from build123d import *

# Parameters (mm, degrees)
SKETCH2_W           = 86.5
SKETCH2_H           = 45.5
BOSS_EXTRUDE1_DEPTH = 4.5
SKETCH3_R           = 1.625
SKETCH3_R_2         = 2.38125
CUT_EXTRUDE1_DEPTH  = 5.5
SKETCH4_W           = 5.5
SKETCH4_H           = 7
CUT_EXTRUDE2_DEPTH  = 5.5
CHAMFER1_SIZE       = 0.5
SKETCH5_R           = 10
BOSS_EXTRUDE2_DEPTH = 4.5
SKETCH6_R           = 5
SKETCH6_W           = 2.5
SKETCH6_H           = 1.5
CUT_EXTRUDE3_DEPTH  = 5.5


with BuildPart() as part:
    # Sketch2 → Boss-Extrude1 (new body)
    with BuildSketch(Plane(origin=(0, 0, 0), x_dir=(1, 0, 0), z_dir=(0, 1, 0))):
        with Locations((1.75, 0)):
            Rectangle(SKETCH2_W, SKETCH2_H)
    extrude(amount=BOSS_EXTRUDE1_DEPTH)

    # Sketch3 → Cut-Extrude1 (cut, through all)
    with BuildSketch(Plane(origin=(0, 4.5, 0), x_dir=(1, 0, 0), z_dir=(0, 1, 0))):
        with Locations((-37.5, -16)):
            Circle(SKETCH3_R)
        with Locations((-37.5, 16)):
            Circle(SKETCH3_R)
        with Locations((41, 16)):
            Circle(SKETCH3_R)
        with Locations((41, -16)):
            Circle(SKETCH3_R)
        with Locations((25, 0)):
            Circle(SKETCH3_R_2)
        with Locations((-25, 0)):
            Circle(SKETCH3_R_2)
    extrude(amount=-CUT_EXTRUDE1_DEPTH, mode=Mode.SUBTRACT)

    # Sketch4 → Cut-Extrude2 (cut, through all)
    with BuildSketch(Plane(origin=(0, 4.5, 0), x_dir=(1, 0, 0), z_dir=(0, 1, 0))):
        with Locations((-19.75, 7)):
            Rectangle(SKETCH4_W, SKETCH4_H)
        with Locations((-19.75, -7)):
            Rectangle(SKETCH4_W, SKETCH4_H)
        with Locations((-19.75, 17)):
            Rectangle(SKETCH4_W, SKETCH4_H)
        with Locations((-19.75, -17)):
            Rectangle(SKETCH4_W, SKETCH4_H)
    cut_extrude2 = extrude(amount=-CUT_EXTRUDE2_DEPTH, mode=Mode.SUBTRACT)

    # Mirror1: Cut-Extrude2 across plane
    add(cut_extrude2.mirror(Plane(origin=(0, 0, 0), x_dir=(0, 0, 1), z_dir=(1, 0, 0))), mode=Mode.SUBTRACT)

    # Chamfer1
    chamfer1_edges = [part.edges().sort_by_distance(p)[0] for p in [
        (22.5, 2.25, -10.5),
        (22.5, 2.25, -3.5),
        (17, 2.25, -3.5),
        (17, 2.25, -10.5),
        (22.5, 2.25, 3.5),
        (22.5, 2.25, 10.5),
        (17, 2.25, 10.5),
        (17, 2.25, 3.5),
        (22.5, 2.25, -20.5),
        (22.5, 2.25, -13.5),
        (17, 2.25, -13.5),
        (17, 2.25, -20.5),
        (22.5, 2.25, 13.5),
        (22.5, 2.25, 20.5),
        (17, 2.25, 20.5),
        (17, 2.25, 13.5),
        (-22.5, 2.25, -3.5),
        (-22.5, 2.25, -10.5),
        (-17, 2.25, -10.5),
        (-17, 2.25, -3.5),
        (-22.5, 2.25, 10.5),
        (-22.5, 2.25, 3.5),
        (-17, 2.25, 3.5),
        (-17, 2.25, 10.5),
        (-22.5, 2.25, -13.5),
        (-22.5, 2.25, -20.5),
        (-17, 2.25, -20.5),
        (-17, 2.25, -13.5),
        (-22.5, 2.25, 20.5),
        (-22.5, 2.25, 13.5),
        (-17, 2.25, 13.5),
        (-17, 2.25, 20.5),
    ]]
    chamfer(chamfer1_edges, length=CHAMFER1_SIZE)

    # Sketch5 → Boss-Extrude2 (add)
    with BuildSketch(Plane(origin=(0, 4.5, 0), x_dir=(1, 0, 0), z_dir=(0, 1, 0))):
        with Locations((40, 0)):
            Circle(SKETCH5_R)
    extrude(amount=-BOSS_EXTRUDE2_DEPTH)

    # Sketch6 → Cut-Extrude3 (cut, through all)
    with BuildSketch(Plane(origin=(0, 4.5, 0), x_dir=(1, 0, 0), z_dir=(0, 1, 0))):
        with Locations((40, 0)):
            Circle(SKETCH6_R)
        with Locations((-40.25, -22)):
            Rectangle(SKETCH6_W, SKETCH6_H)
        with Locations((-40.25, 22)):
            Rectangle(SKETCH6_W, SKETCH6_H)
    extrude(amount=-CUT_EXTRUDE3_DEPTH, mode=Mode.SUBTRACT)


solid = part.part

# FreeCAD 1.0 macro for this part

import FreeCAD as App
import Part
import Sketcher
from FreeCAD import Vector


def edges_at(feature, points):
    """Names of the edges that pass closest to the given points."""
    edges = feature.Shape.Edges
    near = lambda p: min(range(len(edges)), key=lambda i: edges[i].distToShape(Part.Vertex(*p))[0])
    return sorted({f"Edge{near(p) + 1}" for p in points})

doc = App.newDocument("Part")
body = doc.addObject("PartDesign::Body", "Body")

# Sketch on XZ plane
sketch1 = body.newObject("Sketcher::SketchObject", "Sketch")
sketch1.AttachmentSupport = (doc.getObject("XZ_Plane"), [""])
sketch1.MapMode = "FlatFace"
sketch1.addGeometry(Part.LineSegment(Vector(-41.5, -22.75, 0), Vector(-41.5, 22.75, 0)), False)
sketch1.addGeometry(Part.LineSegment(Vector(-41.5, 22.75, 0), Vector(45, 22.75, 0)), False)
sketch1.addGeometry(Part.LineSegment(Vector(45, 22.75, 0), Vector(45, -22.75, 0)), False)
sketch1.addGeometry(Part.LineSegment(Vector(45, -22.75, 0), Vector(-41.5, -22.75, 0)), False)
sketch1.addConstraint(Sketcher.Constraint("Coincident", 0, 2, 1, 1))
sketch1.addConstraint(Sketcher.Constraint("Coincident", 1, 2, 2, 1))
sketch1.addConstraint(Sketcher.Constraint("Coincident", 2, 2, 3, 1))
sketch1.addConstraint(Sketcher.Constraint("Coincident", 3, 2, 0, 1))
sketch1.addConstraint(Sketcher.Constraint("Vertical", 0))
sketch1.addConstraint(Sketcher.Constraint("Horizontal", 1))
sketch1.addConstraint(Sketcher.Constraint("Vertical", 2))
sketch1.addConstraint(Sketcher.Constraint("Horizontal", 3))
sketch1.addConstraint(Sketcher.Constraint("DistanceX", 1, 1, 1, 2, 86.5))
sketch1.addConstraint(Sketcher.Constraint("DistanceY", 0, 1, 0, 2, 45.5))
sketch1.addConstraint(Sketcher.Constraint("DistanceX", -1, 1, 1, 2, 45.0))
sketch1.addConstraint(Sketcher.Constraint("DistanceY", -1, 1, 0, 2, 22.75))
pad1 = body.newObject("PartDesign::Pad", "Pad")
pad1.Profile = sketch1
pad1.Length = 4.5
pad1.Reversed = True

# Sketch on XZ plane
sketch2 = body.newObject("Sketcher::SketchObject", "Sketch001")
sketch2.AttachmentSupport = (doc.getObject("XZ_Plane"), [""])
sketch2.MapMode = "FlatFace"
sketch2.AttachmentOffset = App.Placement(Vector(0, 0, -4.5), App.Rotation())
sketch2.addGeometry(Part.Circle(Vector(-37.5, 16, 0), Vector(0, 0, 1), 1.625), False)
sketch2.addGeometry(Part.Circle(Vector(-37.5, -16, 0), Vector(0, 0, 1), 1.625), False)
sketch2.addGeometry(Part.Circle(Vector(41, -16, 0), Vector(0, 0, 1), 1.625), False)
sketch2.addGeometry(Part.Circle(Vector(41, 16, 0), Vector(0, 0, 1), 1.625), False)
sketch2.addGeometry(Part.Circle(Vector(25, 0, 0), Vector(0, 0, 1), 2.38125), False)
sketch2.addGeometry(Part.Circle(Vector(-25, 0, 0), Vector(0, 0, 1), 2.38125), False)
sketch2.addConstraint(Sketcher.Constraint("Equal", 0, 1))
sketch2.addConstraint(Sketcher.Constraint("Equal", 1, 2))
sketch2.addConstraint(Sketcher.Constraint("Equal", 2, 3))
sketch2.addConstraint(Sketcher.Constraint("Equal", 4, 5))
sketch2.addConstraint(Sketcher.Constraint("Symmetric", 4, 3, 5, 3, -1, 1))
sketch2.addConstraint(Sketcher.Constraint("Symmetric", 0, 3, 1, 3, -1))
sketch2.addConstraint(Sketcher.Constraint("Symmetric", 2, 3, 3, 3, -1))
sketch2.addConstraint(Sketcher.Constraint("PointOnObject", 4, 3, -1))
sketch2.addConstraint(Sketcher.Constraint("Horizontal", 1, 3, 2, 3))
sketch2.addConstraint(Sketcher.Constraint("Diameter", 0, 3.25))
sketch2.addConstraint(Sketcher.Constraint("DistanceY", -1, 1, 0, 3, 16.0))
sketch2.addConstraint(Sketcher.Constraint("DistanceX", -1, 1, 2, 3, 41.0))
sketch2.addConstraint(Sketcher.Constraint("DistanceX", -1, 1, 4, 3, 25.0))
sketch2.addConstraint(Sketcher.Constraint("Diameter", 4, 4.7625))
sketch2.addConstraint(Sketcher.Constraint("DistanceX", 0, 3, -1, 1, 37.5))
pocket1 = body.newObject("PartDesign::Pocket", "Pocket")
pocket1.Profile = sketch2
pocket1.Type = "ThroughAll"
pocket1.Reversed = True

# Sketch on XZ plane
sketch3 = body.newObject("Sketcher::SketchObject", "Sketch002")
sketch3.AttachmentSupport = (doc.getObject("XZ_Plane"), [""])
sketch3.MapMode = "FlatFace"
sketch3.AttachmentOffset = App.Placement(Vector(0, 0, -4.5), App.Rotation())
sketch3.addGeometry(Part.LineSegment(Vector(-22.5, -10.5, 0), Vector(-22.5, -3.5, 0)), False)
sketch3.addGeometry(Part.LineSegment(Vector(-22.5, -3.5, 0), Vector(-17, -3.5, 0)), False)
sketch3.addGeometry(Part.LineSegment(Vector(-17, -3.5, 0), Vector(-17, -10.5, 0)), False)
sketch3.addGeometry(Part.LineSegment(Vector(-17, -10.5, 0), Vector(-22.5, -10.5, 0)), False)
sketch3.addGeometry(Part.LineSegment(Vector(-22.5, 3.5, 0), Vector(-22.5, 10.5, 0)), False)
sketch3.addGeometry(Part.LineSegment(Vector(-22.5, 10.5, 0), Vector(-17, 10.5, 0)), False)
sketch3.addGeometry(Part.LineSegment(Vector(-17, 10.5, 0), Vector(-17, 3.5, 0)), False)
sketch3.addGeometry(Part.LineSegment(Vector(-17, 3.5, 0), Vector(-22.5, 3.5, 0)), False)
sketch3.addGeometry(Part.LineSegment(Vector(-22.5, -20.5, 0), Vector(-22.5, -13.5, 0)), False)
sketch3.addGeometry(Part.LineSegment(Vector(-22.5, -13.5, 0), Vector(-17, -13.5, 0)), False)
sketch3.addGeometry(Part.LineSegment(Vector(-17, -13.5, 0), Vector(-17, -20.5, 0)), False)
sketch3.addGeometry(Part.LineSegment(Vector(-17, -20.5, 0), Vector(-22.5, -20.5, 0)), False)
sketch3.addGeometry(Part.LineSegment(Vector(-22.5, 13.5, 0), Vector(-22.5, 20.5, 0)), False)
sketch3.addGeometry(Part.LineSegment(Vector(-22.5, 20.5, 0), Vector(-17, 20.5, 0)), False)
sketch3.addGeometry(Part.LineSegment(Vector(-17, 20.5, 0), Vector(-17, 13.5, 0)), False)
sketch3.addGeometry(Part.LineSegment(Vector(-17, 13.5, 0), Vector(-22.5, 13.5, 0)), False)
sketch3.addConstraint(Sketcher.Constraint("Coincident", 0, 2, 1, 1))
sketch3.addConstraint(Sketcher.Constraint("Coincident", 1, 2, 2, 1))
sketch3.addConstraint(Sketcher.Constraint("Coincident", 2, 2, 3, 1))
sketch3.addConstraint(Sketcher.Constraint("Coincident", 3, 2, 0, 1))
sketch3.addConstraint(Sketcher.Constraint("Coincident", 4, 2, 5, 1))
sketch3.addConstraint(Sketcher.Constraint("Coincident", 5, 2, 6, 1))
sketch3.addConstraint(Sketcher.Constraint("Coincident", 6, 2, 7, 1))
sketch3.addConstraint(Sketcher.Constraint("Coincident", 7, 2, 4, 1))
sketch3.addConstraint(Sketcher.Constraint("Coincident", 8, 2, 9, 1))
sketch3.addConstraint(Sketcher.Constraint("Coincident", 9, 2, 10, 1))
sketch3.addConstraint(Sketcher.Constraint("Coincident", 10, 2, 11, 1))
sketch3.addConstraint(Sketcher.Constraint("Coincident", 11, 2, 8, 1))
sketch3.addConstraint(Sketcher.Constraint("Coincident", 12, 2, 13, 1))
sketch3.addConstraint(Sketcher.Constraint("Coincident", 13, 2, 14, 1))
sketch3.addConstraint(Sketcher.Constraint("Coincident", 14, 2, 15, 1))
sketch3.addConstraint(Sketcher.Constraint("Coincident", 15, 2, 12, 1))
sketch3.addConstraint(Sketcher.Constraint("Vertical", 0))
sketch3.addConstraint(Sketcher.Constraint("Horizontal", 1))
sketch3.addConstraint(Sketcher.Constraint("Vertical", 2))
sketch3.addConstraint(Sketcher.Constraint("Horizontal", 3))
sketch3.addConstraint(Sketcher.Constraint("Vertical", 4))
sketch3.addConstraint(Sketcher.Constraint("Horizontal", 5))
sketch3.addConstraint(Sketcher.Constraint("Vertical", 6))
sketch3.addConstraint(Sketcher.Constraint("Horizontal", 7))
sketch3.addConstraint(Sketcher.Constraint("Vertical", 8))
sketch3.addConstraint(Sketcher.Constraint("Horizontal", 9))
sketch3.addConstraint(Sketcher.Constraint("Vertical", 10))
sketch3.addConstraint(Sketcher.Constraint("Horizontal", 11))
sketch3.addConstraint(Sketcher.Constraint("Vertical", 12))
sketch3.addConstraint(Sketcher.Constraint("Horizontal", 13))
sketch3.addConstraint(Sketcher.Constraint("Vertical", 14))
sketch3.addConstraint(Sketcher.Constraint("Horizontal", 15))
sketch3.addConstraint(Sketcher.Constraint("Symmetric", 3, 2, 4, 2, -1))
sketch3.addConstraint(Sketcher.Constraint("Symmetric", 1, 2, 6, 2, -1))
sketch3.addConstraint(Sketcher.Constraint("Symmetric", 11, 2, 12, 2, -1))
sketch3.addConstraint(Sketcher.Constraint("Symmetric", 9, 2, 14, 2, -1))
sketch3.addConstraint(Sketcher.Constraint("Vertical", 7, 2, 8, 2))
sketch3.addConstraint(Sketcher.Constraint("Vertical", 6, 2, 9, 2))
sketch3.addConstraint(Sketcher.Constraint("Equal", 6, 8))
sketch3.addConstraint(Sketcher.Constraint("DistanceY", 0, 1, 0, 2, 7.0))
sketch3.addConstraint(Sketcher.Constraint("DistanceX", 1, 1, 1, 2, 5.5))
sketch3.addConstraint(Sketcher.Constraint("DistanceX", 1, 2, -1, 1, 17.0))
sketch3.addConstraint(Sketcher.Constraint("DistanceY", 0, 2, 4, 2, 14.0))
sketch3.addConstraint(Sketcher.Constraint("DistanceY", 8, 2, 3, 2, 3.0))
pocket2 = body.newObject("PartDesign::Pocket", "Pocket001")
pocket2.Profile = sketch3
pocket2.Type = "ThroughAll"
pocket2.Reversed = True
doc.recompute()

mirrored = body.newObject("PartDesign::Mirrored", "Mirrored")
mirrored.Originals = [pocket2]
mirrored.MirrorPlane = (doc.getObject("YZ_Plane"), [""])
body.Tip = mirrored
doc.recompute()

chamfer = body.newObject("PartDesign::Chamfer", "Chamfer")
chamfer.Base = (mirrored, edges_at(mirrored, [
    (22.5, 2.25, -10.5),
    (22.5, 2.25, -3.5),
    (17, 2.25, -3.5),
    (17, 2.25, -10.5),
    (22.5, 2.25, 3.5),
    (22.5, 2.25, 10.5),
    (17, 2.25, 10.5),
    (17, 2.25, 3.5),
    (22.5, 2.25, -20.5),
    (22.5, 2.25, -13.5),
    (17, 2.25, -13.5),
    (17, 2.25, -20.5),
    (22.5, 2.25, 13.5),
    (22.5, 2.25, 20.5),
    (17, 2.25, 20.5),
    (17, 2.25, 13.5),
    (-22.5, 2.25, -3.5),
    (-22.5, 2.25, -10.5),
    (-17, 2.25, -10.5),
    (-17, 2.25, -3.5),
    (-22.5, 2.25, 10.5),
    (-22.5, 2.25, 3.5),
    (-17, 2.25, 3.5),
    (-17, 2.25, 10.5),
    (-22.5, 2.25, -13.5),
    (-22.5, 2.25, -20.5),
    (-17, 2.25, -20.5),
    (-17, 2.25, -13.5),
    (-22.5, 2.25, 20.5),
    (-22.5, 2.25, 13.5),
    (-17, 2.25, 13.5),
    (-17, 2.25, 20.5),
]))
chamfer.Size = 0.5

# Sketch on XZ plane
sketch4 = body.newObject("Sketcher::SketchObject", "Sketch003")
sketch4.AttachmentSupport = (doc.getObject("XZ_Plane"), [""])
sketch4.MapMode = "FlatFace"
sketch4.AttachmentOffset = App.Placement(Vector(0, 0, -4.5), App.Rotation())
sketch4.addGeometry(Part.Circle(Vector(40, 0, 0), Vector(0, 0, 1), 10), False)
sketch4.addConstraint(Sketcher.Constraint("PointOnObject", 0, 3, -1))
sketch4.addConstraint(Sketcher.Constraint("Diameter", 0, 20.0))
sketch4.addConstraint(Sketcher.Constraint("DistanceX", -1, 1, 0, 3, 40.0))
pad2 = body.newObject("PartDesign::Pad", "Pad001")
pad2.Profile = sketch4
pad2.Length = 4.5

# Sketch on XZ plane
sketch5 = body.newObject("Sketcher::SketchObject", "Sketch004")
sketch5.AttachmentSupport = (doc.getObject("XZ_Plane"), [""])
sketch5.MapMode = "FlatFace"
sketch5.AttachmentOffset = App.Placement(Vector(0, 0, -4.5), App.Rotation())
sketch5.addGeometry(Part.Circle(Vector(40, 0, 0), Vector(0, 0, 1), 5), False)
sketch5.addGeometry(Part.LineSegment(Vector(-41.5, 21.25, 0), Vector(-41.5, 22.75, 0)), False)
sketch5.addGeometry(Part.LineSegment(Vector(-41.5, 22.75, 0), Vector(-39, 22.75, 0)), False)
sketch5.addGeometry(Part.LineSegment(Vector(-39, 22.75, 0), Vector(-39, 21.25, 0)), False)
sketch5.addGeometry(Part.LineSegment(Vector(-39, 21.25, 0), Vector(-41.5, 21.25, 0)), False)
sketch5.addGeometry(Part.LineSegment(Vector(-41.5, -22.75, 0), Vector(-41.5, -21.25, 0)), False)
sketch5.addGeometry(Part.LineSegment(Vector(-41.5, -21.25, 0), Vector(-39, -21.25, 0)), False)
sketch5.addGeometry(Part.LineSegment(Vector(-39, -21.25, 0), Vector(-39, -22.75, 0)), False)
sketch5.addGeometry(Part.LineSegment(Vector(-39, -22.75, 0), Vector(-41.5, -22.75, 0)), False)
sketch5.addConstraint(Sketcher.Constraint("Coincident", 1, 2, 2, 1))
sketch5.addConstraint(Sketcher.Constraint("Coincident", 2, 2, 3, 1))
sketch5.addConstraint(Sketcher.Constraint("Coincident", 3, 2, 4, 1))
sketch5.addConstraint(Sketcher.Constraint("Coincident", 4, 2, 1, 1))
sketch5.addConstraint(Sketcher.Constraint("Coincident", 5, 2, 6, 1))
sketch5.addConstraint(Sketcher.Constraint("Coincident", 6, 2, 7, 1))
sketch5.addConstraint(Sketcher.Constraint("Coincident", 7, 2, 8, 1))
sketch5.addConstraint(Sketcher.Constraint("Coincident", 8, 2, 5, 1))
sketch5.addConstraint(Sketcher.Constraint("Vertical", 1))
sketch5.addConstraint(Sketcher.Constraint("Horizontal", 2))
sketch5.addConstraint(Sketcher.Constraint("Vertical", 3))
sketch5.addConstraint(Sketcher.Constraint("Horizontal", 4))
sketch5.addConstraint(Sketcher.Constraint("Vertical", 5))
sketch5.addConstraint(Sketcher.Constraint("Horizontal", 6))
sketch5.addConstraint(Sketcher.Constraint("Vertical", 7))
sketch5.addConstraint(Sketcher.Constraint("Horizontal", 8))
sketch5.addConstraint(Sketcher.Constraint("Symmetric", 4, 2, 5, 2, -1))
sketch5.addConstraint(Sketcher.Constraint("Symmetric", 2, 2, 7, 2, -1))
sketch5.addConstraint(Sketcher.Constraint("PointOnObject", 0, 3, -1))
sketch5.addConstraint(Sketcher.Constraint("Diameter", 0, 10.0))
sketch5.addConstraint(Sketcher.Constraint("DistanceX", 2, 1, 2, 2, 2.5))
sketch5.addConstraint(Sketcher.Constraint("DistanceY", 1, 1, 1, 2, 1.5))
sketch5.addConstraint(Sketcher.Constraint("DistanceX", -1, 1, 0, 3, 40.0))
sketch5.addConstraint(Sketcher.Constraint("DistanceX", 2, 2, -1, 1, 39.0))
sketch5.addConstraint(Sketcher.Constraint("DistanceY", 5, 2, 1, 2, 44.0))
pocket3 = body.newObject("PartDesign::Pocket", "Pocket002")
pocket3.Profile = sketch5
pocket3.Type = "ThroughAll"
pocket3.Reversed = True

doc.recompute()
